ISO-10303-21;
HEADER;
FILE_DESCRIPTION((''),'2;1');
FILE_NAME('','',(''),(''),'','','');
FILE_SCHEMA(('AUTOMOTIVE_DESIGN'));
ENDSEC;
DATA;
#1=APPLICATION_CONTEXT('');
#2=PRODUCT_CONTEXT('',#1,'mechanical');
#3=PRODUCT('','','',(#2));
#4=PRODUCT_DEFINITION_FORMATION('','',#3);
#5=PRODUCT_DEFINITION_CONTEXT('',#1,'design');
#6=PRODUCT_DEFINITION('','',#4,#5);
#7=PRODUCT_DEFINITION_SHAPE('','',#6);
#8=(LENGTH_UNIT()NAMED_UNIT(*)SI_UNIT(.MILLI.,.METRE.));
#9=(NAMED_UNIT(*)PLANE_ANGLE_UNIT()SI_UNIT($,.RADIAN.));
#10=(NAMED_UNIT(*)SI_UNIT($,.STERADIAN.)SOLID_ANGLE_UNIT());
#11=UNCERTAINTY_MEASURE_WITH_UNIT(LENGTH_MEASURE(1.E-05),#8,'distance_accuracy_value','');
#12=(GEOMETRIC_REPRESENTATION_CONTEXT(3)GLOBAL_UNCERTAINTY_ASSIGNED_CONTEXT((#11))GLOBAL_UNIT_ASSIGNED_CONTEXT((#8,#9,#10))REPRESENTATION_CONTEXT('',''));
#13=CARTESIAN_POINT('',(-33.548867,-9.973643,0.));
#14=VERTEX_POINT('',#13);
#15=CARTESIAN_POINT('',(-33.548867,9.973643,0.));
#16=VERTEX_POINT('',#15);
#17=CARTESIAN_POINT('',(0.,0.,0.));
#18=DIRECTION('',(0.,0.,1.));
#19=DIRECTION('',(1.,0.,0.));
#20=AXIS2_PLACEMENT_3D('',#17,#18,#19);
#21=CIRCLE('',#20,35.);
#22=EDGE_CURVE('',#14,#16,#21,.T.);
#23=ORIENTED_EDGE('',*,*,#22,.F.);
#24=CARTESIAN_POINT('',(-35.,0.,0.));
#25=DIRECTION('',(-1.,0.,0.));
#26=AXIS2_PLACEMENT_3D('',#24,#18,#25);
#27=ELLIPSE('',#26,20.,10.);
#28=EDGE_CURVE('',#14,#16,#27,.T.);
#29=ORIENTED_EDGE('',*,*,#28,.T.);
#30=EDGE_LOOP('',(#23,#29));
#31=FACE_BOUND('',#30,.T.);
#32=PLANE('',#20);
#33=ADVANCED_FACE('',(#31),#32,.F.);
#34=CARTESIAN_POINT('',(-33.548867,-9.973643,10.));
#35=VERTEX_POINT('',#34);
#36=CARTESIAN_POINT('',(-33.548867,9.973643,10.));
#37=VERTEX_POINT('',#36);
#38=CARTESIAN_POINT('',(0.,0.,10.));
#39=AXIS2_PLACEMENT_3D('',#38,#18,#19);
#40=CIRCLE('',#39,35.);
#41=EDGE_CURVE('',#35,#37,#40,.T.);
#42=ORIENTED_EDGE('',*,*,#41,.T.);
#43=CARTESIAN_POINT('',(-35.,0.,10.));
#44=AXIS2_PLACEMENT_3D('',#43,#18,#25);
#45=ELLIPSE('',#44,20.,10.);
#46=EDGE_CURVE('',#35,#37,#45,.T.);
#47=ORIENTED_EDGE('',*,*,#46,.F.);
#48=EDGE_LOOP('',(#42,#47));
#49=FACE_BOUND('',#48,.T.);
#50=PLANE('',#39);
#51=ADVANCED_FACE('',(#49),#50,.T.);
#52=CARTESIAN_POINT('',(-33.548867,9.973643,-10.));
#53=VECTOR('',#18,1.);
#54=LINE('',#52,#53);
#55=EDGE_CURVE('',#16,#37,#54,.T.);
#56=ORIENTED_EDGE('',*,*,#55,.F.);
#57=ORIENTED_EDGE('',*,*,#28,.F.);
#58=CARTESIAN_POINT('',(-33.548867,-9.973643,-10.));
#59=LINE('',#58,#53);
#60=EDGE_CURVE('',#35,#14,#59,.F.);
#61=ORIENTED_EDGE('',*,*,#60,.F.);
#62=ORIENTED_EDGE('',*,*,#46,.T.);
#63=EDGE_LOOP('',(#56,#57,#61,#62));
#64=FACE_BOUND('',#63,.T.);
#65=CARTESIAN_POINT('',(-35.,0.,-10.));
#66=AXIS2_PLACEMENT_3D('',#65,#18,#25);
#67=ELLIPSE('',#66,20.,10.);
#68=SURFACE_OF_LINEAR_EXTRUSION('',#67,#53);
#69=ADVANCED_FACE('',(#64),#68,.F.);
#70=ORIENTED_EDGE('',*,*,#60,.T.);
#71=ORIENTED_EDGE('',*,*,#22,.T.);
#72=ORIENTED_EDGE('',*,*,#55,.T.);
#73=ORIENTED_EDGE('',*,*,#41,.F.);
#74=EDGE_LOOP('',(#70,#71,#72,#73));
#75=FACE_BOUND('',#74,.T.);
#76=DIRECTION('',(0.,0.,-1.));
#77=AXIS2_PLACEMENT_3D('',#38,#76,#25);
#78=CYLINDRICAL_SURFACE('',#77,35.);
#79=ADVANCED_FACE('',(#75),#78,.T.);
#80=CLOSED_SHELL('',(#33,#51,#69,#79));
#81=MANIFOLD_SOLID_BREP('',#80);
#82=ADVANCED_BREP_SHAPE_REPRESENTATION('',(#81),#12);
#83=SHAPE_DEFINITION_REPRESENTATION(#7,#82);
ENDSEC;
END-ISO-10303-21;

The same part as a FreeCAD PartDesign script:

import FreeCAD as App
import Part
import Sketcher

V = App.Vector
Q = App.Units.Quantity

doc = App.newDocument("Part")
body = doc.addObject("PartDesign::Body", "Body")

sketch1 = body.newObject("Sketcher::SketchObject", "Sketch")
sketch1.AttachmentSupport = (doc.getObject("XY_Plane"), [""])
sketch1.MapMode = "FlatFace"
sketch1.addGeometry(Part.Circle(V(0, 0, 0), V(0, 0, 1), 35), False)
sketch1.addConstraint([
    Sketcher.Constraint("Coincident", 0, 3, -1, 1),
    Sketcher.Constraint("Diameter", 0, Q("70 mm")),
])
pad1 = body.newObject("PartDesign::Pad", "Pad")
pad1.Profile = sketch1
pad1.Length = 10

sketch2 = body.newObject("Sketcher::SketchObject", "Sketch001")
sketch2.AttachmentSupport = (doc.getObject("XY_Plane"), [""])
sketch2.MapMode = "FlatFace"
sketch2.AttachmentOffset = App.Placement(V(0, 0, 10), App.Rotation())
sketch2.addGeometry(Part.Ellipse(V(-15, 0, 0), V(-35, 10, 0), V(-35, 0, 0)), False)
sketch2.addConstraint(Sketcher.Constraint("Block", 0))
pocket1 = body.newObject("PartDesign::Pocket", "Pocket")
pocket1.Profile = sketch2
pocket1.Length = 20

doc.recompute()
